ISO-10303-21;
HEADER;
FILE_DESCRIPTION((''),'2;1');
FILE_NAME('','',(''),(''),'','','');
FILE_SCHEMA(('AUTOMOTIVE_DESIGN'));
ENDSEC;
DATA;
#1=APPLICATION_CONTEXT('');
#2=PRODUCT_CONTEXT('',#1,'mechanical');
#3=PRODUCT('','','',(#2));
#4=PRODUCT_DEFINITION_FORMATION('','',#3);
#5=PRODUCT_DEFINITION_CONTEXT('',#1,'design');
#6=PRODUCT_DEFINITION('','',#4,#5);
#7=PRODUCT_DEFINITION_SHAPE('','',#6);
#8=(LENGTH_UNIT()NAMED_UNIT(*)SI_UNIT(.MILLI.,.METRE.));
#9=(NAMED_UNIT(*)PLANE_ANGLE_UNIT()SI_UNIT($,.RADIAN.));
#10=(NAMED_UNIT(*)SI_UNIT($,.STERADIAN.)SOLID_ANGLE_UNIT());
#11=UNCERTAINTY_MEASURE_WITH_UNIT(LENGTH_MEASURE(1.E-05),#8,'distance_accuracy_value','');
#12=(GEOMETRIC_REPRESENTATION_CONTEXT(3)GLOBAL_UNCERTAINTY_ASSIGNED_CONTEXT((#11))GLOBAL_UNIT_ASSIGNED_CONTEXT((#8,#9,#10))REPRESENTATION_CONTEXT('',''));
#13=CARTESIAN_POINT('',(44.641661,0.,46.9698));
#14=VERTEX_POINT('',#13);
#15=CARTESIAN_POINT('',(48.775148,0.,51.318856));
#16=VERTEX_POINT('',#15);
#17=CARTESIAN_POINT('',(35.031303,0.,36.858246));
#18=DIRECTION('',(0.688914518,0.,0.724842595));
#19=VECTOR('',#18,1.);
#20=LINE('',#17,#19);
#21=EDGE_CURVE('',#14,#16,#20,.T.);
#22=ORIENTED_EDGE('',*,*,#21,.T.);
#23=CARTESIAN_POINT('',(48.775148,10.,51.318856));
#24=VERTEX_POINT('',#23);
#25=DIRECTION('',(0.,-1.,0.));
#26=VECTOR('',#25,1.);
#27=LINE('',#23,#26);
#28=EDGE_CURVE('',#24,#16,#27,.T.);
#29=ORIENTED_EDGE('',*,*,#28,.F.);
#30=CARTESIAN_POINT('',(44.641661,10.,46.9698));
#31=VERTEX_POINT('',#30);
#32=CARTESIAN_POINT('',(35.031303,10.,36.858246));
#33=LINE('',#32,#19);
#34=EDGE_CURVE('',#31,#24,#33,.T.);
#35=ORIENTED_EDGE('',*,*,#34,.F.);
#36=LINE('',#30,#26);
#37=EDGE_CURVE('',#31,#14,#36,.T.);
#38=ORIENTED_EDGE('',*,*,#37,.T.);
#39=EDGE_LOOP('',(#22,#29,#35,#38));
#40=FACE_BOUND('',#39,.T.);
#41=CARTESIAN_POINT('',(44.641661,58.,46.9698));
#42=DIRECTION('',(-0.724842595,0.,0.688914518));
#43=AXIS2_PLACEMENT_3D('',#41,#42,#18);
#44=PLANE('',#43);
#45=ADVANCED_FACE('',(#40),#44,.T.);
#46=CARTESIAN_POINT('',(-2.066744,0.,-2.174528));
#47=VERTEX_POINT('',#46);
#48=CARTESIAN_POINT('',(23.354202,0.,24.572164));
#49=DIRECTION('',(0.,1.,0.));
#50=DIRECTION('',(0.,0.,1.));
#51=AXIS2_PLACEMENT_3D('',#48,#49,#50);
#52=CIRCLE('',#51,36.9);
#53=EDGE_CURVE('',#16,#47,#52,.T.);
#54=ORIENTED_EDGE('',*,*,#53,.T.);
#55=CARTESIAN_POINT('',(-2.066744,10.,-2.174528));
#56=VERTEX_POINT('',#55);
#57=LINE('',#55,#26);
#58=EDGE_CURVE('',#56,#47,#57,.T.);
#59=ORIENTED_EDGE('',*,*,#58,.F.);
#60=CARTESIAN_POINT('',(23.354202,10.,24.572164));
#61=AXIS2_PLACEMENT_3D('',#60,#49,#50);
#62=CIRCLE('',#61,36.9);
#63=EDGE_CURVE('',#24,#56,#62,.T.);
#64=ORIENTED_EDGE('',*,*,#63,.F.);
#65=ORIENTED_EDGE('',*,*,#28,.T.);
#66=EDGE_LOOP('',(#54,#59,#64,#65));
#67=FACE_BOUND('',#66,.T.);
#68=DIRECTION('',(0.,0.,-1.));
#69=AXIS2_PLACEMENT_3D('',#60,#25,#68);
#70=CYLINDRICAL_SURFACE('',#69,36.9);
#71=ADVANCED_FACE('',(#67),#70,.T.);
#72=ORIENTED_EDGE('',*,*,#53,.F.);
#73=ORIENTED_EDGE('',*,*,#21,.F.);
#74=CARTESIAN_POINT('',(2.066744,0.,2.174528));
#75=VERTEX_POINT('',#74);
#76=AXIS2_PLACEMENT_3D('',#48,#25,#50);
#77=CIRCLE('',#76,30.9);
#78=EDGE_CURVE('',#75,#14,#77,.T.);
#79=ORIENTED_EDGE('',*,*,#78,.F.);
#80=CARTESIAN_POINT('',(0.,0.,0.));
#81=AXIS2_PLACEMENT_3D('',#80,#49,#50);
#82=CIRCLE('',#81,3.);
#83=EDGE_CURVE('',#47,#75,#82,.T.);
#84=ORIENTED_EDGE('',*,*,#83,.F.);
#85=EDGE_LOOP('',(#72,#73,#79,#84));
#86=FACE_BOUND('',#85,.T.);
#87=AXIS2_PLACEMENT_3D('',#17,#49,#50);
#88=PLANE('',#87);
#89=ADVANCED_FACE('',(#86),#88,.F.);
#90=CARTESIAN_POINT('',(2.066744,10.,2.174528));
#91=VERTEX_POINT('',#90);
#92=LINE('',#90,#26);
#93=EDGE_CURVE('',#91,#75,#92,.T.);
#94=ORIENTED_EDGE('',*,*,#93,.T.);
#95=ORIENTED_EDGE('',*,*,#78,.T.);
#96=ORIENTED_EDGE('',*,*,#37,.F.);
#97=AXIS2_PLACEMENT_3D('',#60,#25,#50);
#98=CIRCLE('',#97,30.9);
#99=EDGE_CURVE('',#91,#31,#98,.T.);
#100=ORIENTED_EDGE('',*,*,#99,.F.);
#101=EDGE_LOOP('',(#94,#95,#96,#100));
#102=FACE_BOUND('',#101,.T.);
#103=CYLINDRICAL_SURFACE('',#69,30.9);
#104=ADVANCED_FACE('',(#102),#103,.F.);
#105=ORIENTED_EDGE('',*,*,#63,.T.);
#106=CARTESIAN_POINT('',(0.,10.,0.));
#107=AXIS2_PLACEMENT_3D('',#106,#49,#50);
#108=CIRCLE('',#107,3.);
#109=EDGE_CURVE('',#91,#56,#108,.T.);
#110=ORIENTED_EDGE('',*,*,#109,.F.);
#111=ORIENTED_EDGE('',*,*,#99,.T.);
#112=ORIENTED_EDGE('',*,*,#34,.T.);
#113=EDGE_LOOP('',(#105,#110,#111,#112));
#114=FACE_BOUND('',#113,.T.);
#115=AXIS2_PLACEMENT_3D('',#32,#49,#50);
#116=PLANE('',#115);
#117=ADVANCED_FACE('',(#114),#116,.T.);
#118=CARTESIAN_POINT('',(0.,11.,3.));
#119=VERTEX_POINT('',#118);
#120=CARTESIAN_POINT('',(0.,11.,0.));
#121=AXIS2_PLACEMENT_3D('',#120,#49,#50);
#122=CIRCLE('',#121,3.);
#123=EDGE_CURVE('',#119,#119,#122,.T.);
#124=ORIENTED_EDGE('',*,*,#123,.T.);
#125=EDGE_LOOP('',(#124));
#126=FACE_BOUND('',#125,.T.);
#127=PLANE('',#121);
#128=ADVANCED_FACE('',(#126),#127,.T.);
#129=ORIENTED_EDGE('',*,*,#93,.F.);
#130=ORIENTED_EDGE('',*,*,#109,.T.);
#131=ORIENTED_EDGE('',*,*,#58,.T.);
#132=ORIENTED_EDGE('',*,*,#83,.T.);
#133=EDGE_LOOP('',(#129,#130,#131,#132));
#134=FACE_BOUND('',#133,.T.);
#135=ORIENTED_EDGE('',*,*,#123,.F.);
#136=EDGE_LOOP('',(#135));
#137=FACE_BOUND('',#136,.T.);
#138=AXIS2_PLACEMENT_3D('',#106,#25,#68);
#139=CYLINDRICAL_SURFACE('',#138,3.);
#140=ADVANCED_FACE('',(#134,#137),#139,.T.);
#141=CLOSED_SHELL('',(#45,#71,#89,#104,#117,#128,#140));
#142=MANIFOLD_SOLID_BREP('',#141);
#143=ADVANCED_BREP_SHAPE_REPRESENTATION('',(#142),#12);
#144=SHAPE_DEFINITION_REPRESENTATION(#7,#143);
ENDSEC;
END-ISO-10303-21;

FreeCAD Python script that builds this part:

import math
import FreeCAD as App
import Part
import Sketcher
from FreeCAD import Vector

doc = App.newDocument("Part")
body = doc.addObject("PartDesign::Body", "Body")

# Sketch on XZ plane
sketch1 = doc.addObject("Sketcher::SketchObject", "Sketch")
body.addObject(sketch1)
sketch1.AttachmentSupport = (doc.XZ_Plane, [""])
sketch1.MapMode = "FlatFace"
sketch1.addGeometry([
    Part.ArcOfCircle(Part.Circle(Vector(23.4, 24.6, 0), Vector(0, 0, 1), 36.9), math.radians(-134), math.radians(46)),
    Part.ArcOfCircle(Part.Circle(Vector(0, 0, 0), Vector(0, 0, 1), 3), math.radians(46), math.radians(226)),
    Part.ArcOfCircle(Part.Circle(Vector(23.4, 24.6, 0), Vector(0, 0, 1), 30.9), math.radians(-134), math.radians(46)),
    Part.ArcOfCircle(Part.Circle(Vector(46.7, 49.1, 0), Vector(0, 0, 1), 3), math.radians(46), math.radians(226)),
], False)
sketch1.addConstraint([
    Sketcher.Constraint("Tangent", 0, 1, 1, 2),
    Sketcher.Constraint("Tangent", 1, 1, 2, 1),
    Sketcher.Constraint("Tangent", 2, 2, 3, 2),
    Sketcher.Constraint("Tangent", 3, 1, 0, 2),
    Sketcher.Constraint("Coincident", 1, 3, -1, 1),
    Sketcher.Constraint("Coincident", 2, 3, 0, 3),
    Sketcher.Constraint("Radius", 1, 3.0),
    Sketcher.Constraint("Radius", 0, 36.9),
    Sketcher.Constraint("DistanceY", -1, 1, 2, 2, 46.9698),
    Sketcher.Constraint("DistanceY", 1, 1, 3, 3, 46.9698),
])
pad1 = doc.addObject("PartDesign::Pad", "Pad")
body.addObject(pad1)
pad1.Profile = sketch1
pad1.Length = 10
pad1.Reversed = True

# Sketch on XZ plane
sketch2 = doc.addObject("Sketcher::SketchObject", "Sketch001")
body.addObject(sketch2)
sketch2.AttachmentSupport = (doc.XZ_Plane, [""])
sketch2.MapMode = "FlatFace"
sketch2.AttachmentOffset = App.Placement(Vector(0, 0, -10), App.Rotation())
sketch2.addGeometry(Part.Circle(Vector(0, 0, 0), Vector(0, 0, 1), 3), False)
sketch2.addConstraint([
    Sketcher.Constraint("Coincident", 0, 3, -1, 1),
    Sketcher.Constraint("Diameter", 0, 6.0),
])
pad2 = doc.addObject("PartDesign::Pad", "Pad001")
body.addObject(pad2)
pad2.Profile = sketch2
pad2.Length = 1
pad2.Reversed = True

# Sketch on XZ plane
sketch3 = doc.addObject("Sketcher::SketchObject", "Sketch002")
body.addObject(sketch3)
sketch3.AttachmentSupport = (doc.XZ_Plane, [""])
sketch3.MapMode = "FlatFace"
sketch3.AttachmentOffset = App.Placement(Vector(0, 0, -10), App.Rotation())
sketch3.addGeometry([
    Part.LineSegment(Vector(48.8, 51.3, 0), Vector(44.6, 47, 0)),
    Part.ArcOfCircle(Part.Circle(Vector(46.7, 49.1, 0), Vector(0, 0, 1), 3), math.radians(136), math.radians(226)),
    Part.ArcOfCircle(Part.Circle(Vector(46.7, 49.1, 0), Vector(0, 0, 1), 3), math.radians(46), math.radians(136)),
], False)
sketch3.addConstraint([
    Sketcher.Constraint("Coincident", 0, 2, 1, 2),
    Sketcher.Constraint("Tangent", 1, 1, 2, 2),
    Sketcher.Constraint("Coincident", 2, 1, 0, 1),
    Sketcher.Constraint("Equal", 1, 2),
    Sketcher.Constraint("Radius", 1, 3.0),
    Sketcher.Constraint("DistanceY", -1, 1, 0, 2, 46.9698),
    Sketcher.Constraint("DistanceX", -1, 1, 0, 2, 44.641661),
    Sketcher.Constraint("DistanceY", -1, 1, 1, 1, 51.211071),
    Sketcher.Constraint("DistanceX", 1, 1, 2, 1, 4.241271),
    Sketcher.Constraint("DistanceX", -1, 1, 1, 3, 46.708404),
])
pocket1 = doc.addObject("PartDesign::Pocket", "Pocket")
body.addObject(pocket1)
pocket1.Profile = sketch3
pocket1.Type = "ThroughAll"
pocket1.Midplane = True

doc.recompute()
